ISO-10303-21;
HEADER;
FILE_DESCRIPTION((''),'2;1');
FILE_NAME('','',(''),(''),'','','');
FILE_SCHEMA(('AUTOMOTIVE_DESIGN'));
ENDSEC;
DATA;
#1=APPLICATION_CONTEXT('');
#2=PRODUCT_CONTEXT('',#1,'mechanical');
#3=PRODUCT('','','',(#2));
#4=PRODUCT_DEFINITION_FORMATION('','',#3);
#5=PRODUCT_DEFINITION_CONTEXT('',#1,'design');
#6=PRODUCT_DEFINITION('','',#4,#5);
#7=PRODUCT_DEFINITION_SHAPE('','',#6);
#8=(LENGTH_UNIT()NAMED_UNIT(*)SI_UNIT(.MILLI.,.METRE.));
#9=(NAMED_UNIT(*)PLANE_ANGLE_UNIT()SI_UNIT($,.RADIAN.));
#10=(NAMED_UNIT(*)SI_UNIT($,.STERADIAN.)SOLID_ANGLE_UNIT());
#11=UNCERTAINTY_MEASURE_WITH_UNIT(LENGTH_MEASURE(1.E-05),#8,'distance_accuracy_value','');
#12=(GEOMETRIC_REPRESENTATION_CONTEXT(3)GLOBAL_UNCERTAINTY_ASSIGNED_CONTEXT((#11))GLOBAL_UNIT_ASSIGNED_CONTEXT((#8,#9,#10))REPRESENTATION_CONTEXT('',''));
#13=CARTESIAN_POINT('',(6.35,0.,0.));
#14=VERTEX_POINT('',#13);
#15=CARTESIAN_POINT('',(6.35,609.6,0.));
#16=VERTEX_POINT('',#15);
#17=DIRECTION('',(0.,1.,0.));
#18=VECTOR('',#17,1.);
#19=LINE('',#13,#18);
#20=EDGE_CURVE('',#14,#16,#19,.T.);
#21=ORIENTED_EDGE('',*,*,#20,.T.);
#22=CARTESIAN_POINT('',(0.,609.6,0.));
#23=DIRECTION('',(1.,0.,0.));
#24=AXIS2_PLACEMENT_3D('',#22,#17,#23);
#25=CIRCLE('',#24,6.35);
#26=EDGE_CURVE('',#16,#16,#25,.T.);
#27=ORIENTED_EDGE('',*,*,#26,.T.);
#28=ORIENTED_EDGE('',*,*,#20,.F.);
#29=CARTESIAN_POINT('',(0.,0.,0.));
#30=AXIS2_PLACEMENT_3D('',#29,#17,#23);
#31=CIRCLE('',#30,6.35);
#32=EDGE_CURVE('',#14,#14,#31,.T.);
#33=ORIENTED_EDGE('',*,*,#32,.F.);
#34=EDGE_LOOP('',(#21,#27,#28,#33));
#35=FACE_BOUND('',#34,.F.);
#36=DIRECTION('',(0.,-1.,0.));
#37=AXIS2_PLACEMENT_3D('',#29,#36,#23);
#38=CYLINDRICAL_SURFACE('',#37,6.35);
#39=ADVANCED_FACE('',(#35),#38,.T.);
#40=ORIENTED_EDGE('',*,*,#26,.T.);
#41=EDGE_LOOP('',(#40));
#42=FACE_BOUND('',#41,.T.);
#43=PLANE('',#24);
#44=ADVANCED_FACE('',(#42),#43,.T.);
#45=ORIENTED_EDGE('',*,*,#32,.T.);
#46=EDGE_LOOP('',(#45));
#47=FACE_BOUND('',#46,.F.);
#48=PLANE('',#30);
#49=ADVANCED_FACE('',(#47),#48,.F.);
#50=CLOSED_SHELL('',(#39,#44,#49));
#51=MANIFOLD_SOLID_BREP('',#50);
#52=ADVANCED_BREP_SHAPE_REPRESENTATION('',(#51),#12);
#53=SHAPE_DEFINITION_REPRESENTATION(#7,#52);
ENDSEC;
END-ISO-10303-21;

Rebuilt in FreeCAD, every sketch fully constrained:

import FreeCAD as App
import Part
import Sketcher

V = App.Vector
Q = App.Units.Quantity

doc = App.newDocument("Part")
body = doc.addObject("PartDesign::Body", "Body")

sketch1 = body.newObject("Sketcher::SketchObject", "Sketch")
sketch1.AttachmentSupport = (doc.getObject("XZ_Plane"), [""])
sketch1.MapMode = "FlatFace"
sketch1.addGeometry(Part.Circle(V(0, 0, 0), V(0, 0, 1), 6.35), False)
sketch1.addConstraint([
    Sketcher.Constraint("Coincident", 0, 3, -1, 1),
    Sketcher.Constraint("Diameter", 0, Q("0.5 in")),
])
pad1 = body.newObject("PartDesign::Pad", "Pad")
pad1.Profile = sketch1
pad1.Length = Q("24 in")
pad1.Reversed = True

doc.recompute()
